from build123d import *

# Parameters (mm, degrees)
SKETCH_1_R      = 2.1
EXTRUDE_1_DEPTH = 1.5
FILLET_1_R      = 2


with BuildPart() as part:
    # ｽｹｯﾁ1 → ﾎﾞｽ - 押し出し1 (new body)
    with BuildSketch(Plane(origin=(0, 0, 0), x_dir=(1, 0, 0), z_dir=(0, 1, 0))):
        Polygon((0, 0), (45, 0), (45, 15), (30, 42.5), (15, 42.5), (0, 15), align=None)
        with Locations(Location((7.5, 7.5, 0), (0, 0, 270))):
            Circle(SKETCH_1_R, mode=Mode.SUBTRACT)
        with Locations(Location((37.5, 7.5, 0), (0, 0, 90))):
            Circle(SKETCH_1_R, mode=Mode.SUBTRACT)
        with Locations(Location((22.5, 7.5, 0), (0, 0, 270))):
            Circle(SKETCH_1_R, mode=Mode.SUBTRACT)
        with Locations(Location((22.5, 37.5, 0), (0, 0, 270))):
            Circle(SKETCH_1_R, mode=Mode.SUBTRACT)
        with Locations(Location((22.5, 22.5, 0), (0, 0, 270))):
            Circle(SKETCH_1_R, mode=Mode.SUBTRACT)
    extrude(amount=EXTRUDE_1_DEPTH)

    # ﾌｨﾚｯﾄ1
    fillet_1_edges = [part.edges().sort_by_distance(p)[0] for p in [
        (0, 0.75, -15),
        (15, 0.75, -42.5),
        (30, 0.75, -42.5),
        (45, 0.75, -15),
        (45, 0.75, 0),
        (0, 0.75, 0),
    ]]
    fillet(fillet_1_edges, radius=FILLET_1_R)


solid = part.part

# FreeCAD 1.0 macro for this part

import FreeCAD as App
import Part
import Sketcher

V = App.Vector
Q = App.Units.Quantity


def edges_at(feature, points):
    """Names of the edges that pass closest to the given points."""
    edges = feature.Shape.Edges
    near = lambda p: min(range(len(edges)), key=lambda i: edges[i].distToShape(Part.Vertex(*p))[0])
    return sorted({f"Edge{near(p) + 1}" for p in points})


def add_polygon(sketch, points):
    """Adds a closed chain of lines whose ends are joined by coincident constraints."""
    first, n = sketch.GeometryCount, len(points)
    for a, b in zip(points, points[1:] + points[:1]):
        sketch.addGeometry(Part.LineSegment(App.Vector(*a, 0), App.Vector(*b, 0)), False)
    for i in range(n):
        sketch.addConstraint(Sketcher.Constraint("Coincident", first + i, 2, first + (i + 1) % n, 1))

doc = App.newDocument("Part")
body = doc.addObject("PartDesign::Body", "Body")

sketch1 = body.newObject("Sketcher::SketchObject", "Sketch")
sketch1.AttachmentSupport = (doc.getObject("XZ_Plane"), [""])
sketch1.MapMode = "FlatFace"
add_polygon(sketch1, [(0, 0), (45, 0), (45, -15), (30, -42.5), (15, -42.5), (0, -15)])
sketch1.addGeometry(Part.Circle(V(7.5, -7.5, 0), V(0, 0, 1), 2.1), False)
sketch1.addGeometry(Part.Circle(V(22.5, -7.5, 0), V(0, 0, 1), 2.1), False)
sketch1.addGeometry(Part.Circle(V(37.5, -7.5, 0), V(0, 0, 1), 2.1), False)
sketch1.addGeometry(Part.Circle(V(22.5, -22.5, 0), V(0, 0, 1), 2.1), False)
sketch1.addGeometry(Part.Circle(V(22.5, -37.5, 0), V(0, 0, 1), 2.1), False)
sketch1.addConstraint(Sketcher.Constraint("Horizontal", 0))
sketch1.addConstraint(Sketcher.Constraint("Vertical", 1))
sketch1.addConstraint(Sketcher.Constraint("Horizontal", 3))
sketch1.addConstraint(Sketcher.Constraint("Vertical", 5))
sketch1.addConstraint(Sketcher.Constraint("Coincident", 5, 2, -1, 1))
sketch1.addConstraint(Sketcher.Constraint("Equal", 6, 7))
sketch1.addConstraint(Sketcher.Constraint("Equal", 7, 8))
sketch1.addConstraint(Sketcher.Constraint("Equal", 8, 9))
sketch1.addConstraint(Sketcher.Constraint("Equal", 9, 10))
sketch1.addConstraint(Sketcher.Constraint("Horizontal", 6, 3, 7, 3))
sketch1.addConstraint(Sketcher.Constraint("Horizontal", 7, 3, 8, 3))
sketch1.addConstraint(Sketcher.Constraint("Horizontal", 1, 2, 4, 2))
sketch1.addConstraint(Sketcher.Constraint("Vertical", 7, 3, 9, 3))
sketch1.addConstraint(Sketcher.Constraint("Vertical", 9, 3, 10, 3))
sketch1.addConstraint(Sketcher.Constraint("Equal", 3, 1))
sketch1.addConstraint(Sketcher.Constraint("Equal", 2, 4))
sketch1.addConstraint(Sketcher.Constraint("Diameter", 6, Q("4.2 mm")))
sketch1.addConstraint(Sketcher.Constraint("DistanceX", 0, 1, 0, 2, Q("45 mm")))
sketch1.addConstraint(Sketcher.Constraint("DistanceX", 3, 2, 3, 1, Q("15 mm")))
sketch1.addConstraint(Sketcher.Constraint("DistanceX", 6, 3, 7, 3, Q("15 mm")))
sketch1.addConstraint(Sketcher.Constraint("DistanceX", 7, 3, 8, 3, Q("15 mm")))
sketch1.addConstraint(Sketcher.Constraint("DistanceY", 9, 3, 7, 3, Q("15 mm")))
sketch1.addConstraint(Sketcher.Constraint("DistanceY", 10, 3, 9, 3, Q("15 mm")))
sketch1.addConstraint(Sketcher.Constraint("DistanceY", 2, 2, 10, 3, Q("5 mm")))
sketch1.addConstraint(Sketcher.Constraint("DistanceX", -1, 1, 6, 3, Q("7.5 mm")))
sketch1.addConstraint(Sketcher.Constraint("DistanceY", 6, 3, -1, 1, Q("7.5 mm")))
pad1 = body.newObject("PartDesign::Pad", "Pad")
pad1.Profile = sketch1
pad1.Length = 1.5
pad1.Reversed = True
doc.recompute()

fillet = body.newObject("PartDesign::Fillet", "Fillet")
fillet.Base = (pad1, edges_at(pad1, [
    (0, 0.75, -15),
    (15, 0.75, -42.5),
    (30, 0.75, -42.5),
    (45, 0.75, -15),
    (45, 0.75, 0),
    (0, 0.75, 0),
]))
fillet.Radius = 2

doc.recompute()
